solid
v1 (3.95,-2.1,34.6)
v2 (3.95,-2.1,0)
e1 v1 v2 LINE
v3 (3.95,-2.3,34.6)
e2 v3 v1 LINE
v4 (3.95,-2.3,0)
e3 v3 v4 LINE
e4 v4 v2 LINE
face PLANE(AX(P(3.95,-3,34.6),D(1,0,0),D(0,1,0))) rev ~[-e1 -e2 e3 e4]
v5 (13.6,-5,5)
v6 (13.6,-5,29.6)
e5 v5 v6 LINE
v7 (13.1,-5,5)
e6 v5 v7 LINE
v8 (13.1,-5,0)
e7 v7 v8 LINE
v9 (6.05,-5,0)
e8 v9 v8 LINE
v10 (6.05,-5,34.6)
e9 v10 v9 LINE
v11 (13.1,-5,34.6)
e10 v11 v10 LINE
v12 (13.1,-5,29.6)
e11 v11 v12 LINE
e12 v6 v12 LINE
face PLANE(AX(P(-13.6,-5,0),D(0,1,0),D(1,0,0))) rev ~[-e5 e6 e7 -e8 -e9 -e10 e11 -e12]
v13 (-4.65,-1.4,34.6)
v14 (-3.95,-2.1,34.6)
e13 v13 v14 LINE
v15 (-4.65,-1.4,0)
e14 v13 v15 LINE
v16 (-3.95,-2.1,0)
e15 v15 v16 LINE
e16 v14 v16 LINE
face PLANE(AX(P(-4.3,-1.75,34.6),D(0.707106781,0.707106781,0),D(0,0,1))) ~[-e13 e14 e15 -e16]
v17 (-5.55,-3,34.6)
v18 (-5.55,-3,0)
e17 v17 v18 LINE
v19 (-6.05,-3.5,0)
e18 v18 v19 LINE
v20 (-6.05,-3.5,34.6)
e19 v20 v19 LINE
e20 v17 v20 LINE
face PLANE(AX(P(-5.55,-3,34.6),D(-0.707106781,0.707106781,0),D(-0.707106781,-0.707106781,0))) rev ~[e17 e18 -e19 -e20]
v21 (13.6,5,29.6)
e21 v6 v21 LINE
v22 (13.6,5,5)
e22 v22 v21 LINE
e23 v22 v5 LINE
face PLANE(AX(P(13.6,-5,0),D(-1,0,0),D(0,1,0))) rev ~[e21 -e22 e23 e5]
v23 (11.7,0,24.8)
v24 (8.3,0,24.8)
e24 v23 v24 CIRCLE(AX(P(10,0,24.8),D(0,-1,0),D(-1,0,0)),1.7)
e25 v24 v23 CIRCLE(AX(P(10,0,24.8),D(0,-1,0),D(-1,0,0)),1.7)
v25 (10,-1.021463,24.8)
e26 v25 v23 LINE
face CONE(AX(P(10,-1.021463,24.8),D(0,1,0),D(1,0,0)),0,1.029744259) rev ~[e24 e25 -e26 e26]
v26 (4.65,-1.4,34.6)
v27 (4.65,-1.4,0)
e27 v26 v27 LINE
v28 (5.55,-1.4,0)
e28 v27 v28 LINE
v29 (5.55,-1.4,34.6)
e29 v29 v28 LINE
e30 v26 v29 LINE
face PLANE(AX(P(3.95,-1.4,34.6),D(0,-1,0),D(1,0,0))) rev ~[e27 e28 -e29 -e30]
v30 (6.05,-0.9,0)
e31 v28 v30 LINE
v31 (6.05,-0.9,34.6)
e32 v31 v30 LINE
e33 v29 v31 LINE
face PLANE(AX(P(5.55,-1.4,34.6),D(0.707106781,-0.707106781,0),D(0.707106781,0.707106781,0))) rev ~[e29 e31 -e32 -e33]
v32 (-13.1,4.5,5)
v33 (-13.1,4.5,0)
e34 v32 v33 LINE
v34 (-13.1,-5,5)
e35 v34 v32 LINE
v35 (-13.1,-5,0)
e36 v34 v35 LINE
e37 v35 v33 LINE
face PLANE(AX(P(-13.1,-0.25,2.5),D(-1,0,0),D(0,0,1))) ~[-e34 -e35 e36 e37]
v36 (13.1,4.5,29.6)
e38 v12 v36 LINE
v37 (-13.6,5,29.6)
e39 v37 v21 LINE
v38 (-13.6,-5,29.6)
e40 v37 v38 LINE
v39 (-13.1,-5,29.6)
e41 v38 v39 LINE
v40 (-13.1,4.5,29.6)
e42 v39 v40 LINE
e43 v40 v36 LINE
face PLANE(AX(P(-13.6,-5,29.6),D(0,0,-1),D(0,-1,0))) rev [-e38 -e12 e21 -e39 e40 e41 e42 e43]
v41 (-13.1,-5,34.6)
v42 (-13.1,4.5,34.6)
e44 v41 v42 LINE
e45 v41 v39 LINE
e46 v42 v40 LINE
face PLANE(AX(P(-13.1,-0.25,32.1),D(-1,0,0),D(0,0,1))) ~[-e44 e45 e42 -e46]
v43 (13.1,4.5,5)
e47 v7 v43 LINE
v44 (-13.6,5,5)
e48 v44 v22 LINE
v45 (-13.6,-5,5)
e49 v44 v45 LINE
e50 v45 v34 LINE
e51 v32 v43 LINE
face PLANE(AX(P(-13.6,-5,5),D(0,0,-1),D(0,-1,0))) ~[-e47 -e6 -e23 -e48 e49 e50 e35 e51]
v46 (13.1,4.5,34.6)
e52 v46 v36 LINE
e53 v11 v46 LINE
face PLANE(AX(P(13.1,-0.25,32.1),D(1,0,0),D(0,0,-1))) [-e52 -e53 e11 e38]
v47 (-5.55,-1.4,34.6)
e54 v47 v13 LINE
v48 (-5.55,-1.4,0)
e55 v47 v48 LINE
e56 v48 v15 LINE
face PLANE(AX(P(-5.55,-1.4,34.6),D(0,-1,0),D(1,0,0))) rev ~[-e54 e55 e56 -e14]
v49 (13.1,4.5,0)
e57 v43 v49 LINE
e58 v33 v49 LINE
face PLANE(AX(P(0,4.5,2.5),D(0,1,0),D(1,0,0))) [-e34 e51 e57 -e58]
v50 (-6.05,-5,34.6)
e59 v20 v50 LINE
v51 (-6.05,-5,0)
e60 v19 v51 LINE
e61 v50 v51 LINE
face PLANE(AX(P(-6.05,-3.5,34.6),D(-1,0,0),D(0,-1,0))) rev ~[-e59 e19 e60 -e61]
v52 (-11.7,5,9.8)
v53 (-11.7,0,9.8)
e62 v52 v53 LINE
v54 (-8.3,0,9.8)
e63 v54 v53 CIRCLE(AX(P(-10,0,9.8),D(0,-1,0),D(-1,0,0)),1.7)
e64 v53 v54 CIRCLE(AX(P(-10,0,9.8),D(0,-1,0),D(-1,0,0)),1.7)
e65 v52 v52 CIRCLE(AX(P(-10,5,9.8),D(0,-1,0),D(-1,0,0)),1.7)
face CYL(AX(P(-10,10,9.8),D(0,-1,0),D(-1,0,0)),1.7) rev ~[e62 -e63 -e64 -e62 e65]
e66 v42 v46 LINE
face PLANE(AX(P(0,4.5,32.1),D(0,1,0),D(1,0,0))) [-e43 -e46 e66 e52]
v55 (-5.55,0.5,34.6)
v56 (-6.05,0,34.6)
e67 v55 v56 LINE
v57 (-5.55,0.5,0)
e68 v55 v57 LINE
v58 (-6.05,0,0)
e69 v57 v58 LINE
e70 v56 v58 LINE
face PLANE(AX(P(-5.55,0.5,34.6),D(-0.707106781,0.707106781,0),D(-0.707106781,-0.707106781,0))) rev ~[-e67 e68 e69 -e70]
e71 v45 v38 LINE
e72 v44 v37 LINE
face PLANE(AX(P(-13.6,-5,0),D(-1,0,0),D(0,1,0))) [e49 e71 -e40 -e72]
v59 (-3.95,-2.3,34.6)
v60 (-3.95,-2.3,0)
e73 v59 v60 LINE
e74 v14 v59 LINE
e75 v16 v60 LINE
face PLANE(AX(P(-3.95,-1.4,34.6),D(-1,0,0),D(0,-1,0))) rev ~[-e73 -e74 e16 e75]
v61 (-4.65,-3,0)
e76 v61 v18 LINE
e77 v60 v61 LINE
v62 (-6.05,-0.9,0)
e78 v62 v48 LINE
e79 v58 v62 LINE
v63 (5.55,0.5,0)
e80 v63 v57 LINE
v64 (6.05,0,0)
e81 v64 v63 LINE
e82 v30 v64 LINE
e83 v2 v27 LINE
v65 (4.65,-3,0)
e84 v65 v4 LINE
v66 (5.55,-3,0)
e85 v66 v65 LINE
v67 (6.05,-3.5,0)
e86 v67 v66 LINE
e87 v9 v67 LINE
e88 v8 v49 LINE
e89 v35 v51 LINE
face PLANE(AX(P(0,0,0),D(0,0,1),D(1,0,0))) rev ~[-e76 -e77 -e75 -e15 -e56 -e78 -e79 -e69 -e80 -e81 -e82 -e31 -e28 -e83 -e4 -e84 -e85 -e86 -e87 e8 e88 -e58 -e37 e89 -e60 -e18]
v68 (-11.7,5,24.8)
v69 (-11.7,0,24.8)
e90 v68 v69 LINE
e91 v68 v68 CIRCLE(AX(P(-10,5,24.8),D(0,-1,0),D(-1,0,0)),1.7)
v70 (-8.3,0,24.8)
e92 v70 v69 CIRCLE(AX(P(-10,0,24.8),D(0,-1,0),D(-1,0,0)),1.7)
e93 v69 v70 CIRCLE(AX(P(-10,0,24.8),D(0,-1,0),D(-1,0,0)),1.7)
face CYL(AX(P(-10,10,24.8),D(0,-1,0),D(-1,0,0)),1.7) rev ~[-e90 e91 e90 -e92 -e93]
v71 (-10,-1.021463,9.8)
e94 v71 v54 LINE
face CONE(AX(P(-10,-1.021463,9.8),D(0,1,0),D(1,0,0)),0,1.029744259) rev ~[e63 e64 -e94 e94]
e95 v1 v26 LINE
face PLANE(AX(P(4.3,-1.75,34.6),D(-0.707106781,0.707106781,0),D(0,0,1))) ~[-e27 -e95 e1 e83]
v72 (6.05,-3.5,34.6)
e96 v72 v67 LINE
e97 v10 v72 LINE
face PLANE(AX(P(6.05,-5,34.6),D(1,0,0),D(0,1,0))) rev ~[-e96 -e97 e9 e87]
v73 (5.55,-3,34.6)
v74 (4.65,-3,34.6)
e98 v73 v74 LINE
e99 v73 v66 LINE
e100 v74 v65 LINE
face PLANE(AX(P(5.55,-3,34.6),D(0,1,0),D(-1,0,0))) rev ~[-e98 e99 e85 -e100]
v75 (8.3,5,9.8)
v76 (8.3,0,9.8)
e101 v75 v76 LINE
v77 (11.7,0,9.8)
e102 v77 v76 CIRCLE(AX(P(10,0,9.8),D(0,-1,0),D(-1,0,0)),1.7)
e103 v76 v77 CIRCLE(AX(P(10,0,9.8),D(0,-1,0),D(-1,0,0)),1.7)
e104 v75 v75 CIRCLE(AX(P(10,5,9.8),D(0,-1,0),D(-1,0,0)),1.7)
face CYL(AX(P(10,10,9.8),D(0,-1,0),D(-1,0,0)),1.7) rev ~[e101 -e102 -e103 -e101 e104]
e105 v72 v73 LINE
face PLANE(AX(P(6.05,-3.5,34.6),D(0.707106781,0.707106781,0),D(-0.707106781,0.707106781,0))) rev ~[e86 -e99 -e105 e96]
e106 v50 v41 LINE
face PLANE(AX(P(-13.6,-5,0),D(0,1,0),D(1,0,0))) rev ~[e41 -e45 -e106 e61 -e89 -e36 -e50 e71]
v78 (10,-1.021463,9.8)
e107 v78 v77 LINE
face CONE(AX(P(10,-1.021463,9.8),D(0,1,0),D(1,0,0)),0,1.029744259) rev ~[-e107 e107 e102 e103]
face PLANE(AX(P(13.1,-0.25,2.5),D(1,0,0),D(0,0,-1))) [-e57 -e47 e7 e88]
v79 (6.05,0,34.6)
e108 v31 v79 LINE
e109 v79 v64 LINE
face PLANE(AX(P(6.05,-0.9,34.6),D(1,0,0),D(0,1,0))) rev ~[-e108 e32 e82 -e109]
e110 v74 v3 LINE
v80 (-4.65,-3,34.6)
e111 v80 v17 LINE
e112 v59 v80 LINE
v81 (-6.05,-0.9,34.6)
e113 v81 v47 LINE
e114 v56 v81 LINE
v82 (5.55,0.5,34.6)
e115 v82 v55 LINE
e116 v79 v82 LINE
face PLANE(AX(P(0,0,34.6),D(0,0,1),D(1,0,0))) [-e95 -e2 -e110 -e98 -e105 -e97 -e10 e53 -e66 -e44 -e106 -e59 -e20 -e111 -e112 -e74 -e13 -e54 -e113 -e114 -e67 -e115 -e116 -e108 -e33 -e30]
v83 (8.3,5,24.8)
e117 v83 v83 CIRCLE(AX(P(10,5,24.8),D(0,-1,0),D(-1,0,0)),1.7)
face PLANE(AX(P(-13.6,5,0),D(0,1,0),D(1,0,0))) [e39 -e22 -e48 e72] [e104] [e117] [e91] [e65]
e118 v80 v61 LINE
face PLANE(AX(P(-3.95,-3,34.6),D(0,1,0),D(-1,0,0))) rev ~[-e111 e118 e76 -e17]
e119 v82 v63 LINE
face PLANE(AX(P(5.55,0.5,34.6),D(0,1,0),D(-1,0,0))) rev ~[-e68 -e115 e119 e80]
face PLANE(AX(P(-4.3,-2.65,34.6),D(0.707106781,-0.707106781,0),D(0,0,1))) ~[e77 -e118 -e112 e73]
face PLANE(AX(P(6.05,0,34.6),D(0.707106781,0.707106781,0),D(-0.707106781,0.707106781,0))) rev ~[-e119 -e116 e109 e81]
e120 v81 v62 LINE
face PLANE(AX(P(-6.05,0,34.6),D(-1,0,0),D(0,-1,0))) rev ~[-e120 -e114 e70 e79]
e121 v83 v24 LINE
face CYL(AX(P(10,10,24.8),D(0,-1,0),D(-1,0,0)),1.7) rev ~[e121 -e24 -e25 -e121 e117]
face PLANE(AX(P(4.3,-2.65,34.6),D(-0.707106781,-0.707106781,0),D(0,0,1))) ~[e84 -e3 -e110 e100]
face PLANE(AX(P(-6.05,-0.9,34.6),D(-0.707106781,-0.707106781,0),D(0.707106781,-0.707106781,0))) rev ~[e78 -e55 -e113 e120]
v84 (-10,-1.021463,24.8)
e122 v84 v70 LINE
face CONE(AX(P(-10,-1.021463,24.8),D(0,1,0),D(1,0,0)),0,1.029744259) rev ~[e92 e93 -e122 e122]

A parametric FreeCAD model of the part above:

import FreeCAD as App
import Part
import Sketcher

V = App.Vector
Q = App.Units.Quantity


def edges_at(feature, points):
    """Names of the edges that pass closest to the given points."""
    edges = feature.Shape.Edges
    near = lambda p: min(range(len(edges)), key=lambda i: edges[i].distToShape(Part.Vertex(*p))[0])
    return sorted({f"Edge{near(p) + 1}" for p in points})


def add_polygon(sketch, points):
    """Adds a closed chain of lines whose ends are joined by coincident constraints."""
    first, n = sketch.GeometryCount, len(points)
    for a, b in zip(points, points[1:] + points[:1]):
        sketch.addGeometry(Part.LineSegment(App.Vector(*a, 0), App.Vector(*b, 0)), False)
    for i in range(n):
        sketch.addConstraint(Sketcher.Constraint("Coincident", first + i, 2, first + (i + 1) % n, 1))

doc = App.newDocument("Part")
body = doc.addObject("PartDesign::Body", "Body")

# Sketch on XY plane
sketch1 = body.newObject("Sketcher::SketchObject", "Sketch")
sketch1.AttachmentSupport = (doc.getObject("XY_Plane"), [""])
sketch1.MapMode = "FlatFace"
add_polygon(sketch1, [(-14, 5), (-14, -5), (14, -5), (14, 5)])  # lines 0-3
sketch1.addConstraint(Sketcher.Constraint("Vertical", 0))
sketch1.addConstraint(Sketcher.Constraint("Horizontal", 1))
sketch1.addConstraint(Sketcher.Constraint("Vertical", 2))
sketch1.addConstraint(Sketcher.Constraint("Horizontal", 3))
sketch1.addConstraint(Sketcher.Constraint("Symmetric", 0, 2, 2, 2, -1, 1))
sketch1.addConstraint(Sketcher.Constraint("DistanceY", 0, 2, 0, 1, Q("10 mm")))
sketch1.addConstraint(Sketcher.Constraint("DistanceX", 1, 1, 1, 2, Q("27.2 mm")))
pad1 = body.newObject("PartDesign::Pad", "Pad")
pad1.Profile = sketch1
pad1.Length = 34.6

# Sketch on XY plane
sketch2 = body.newObject("Sketcher::SketchObject", "Sketch001")
sketch2.AttachmentSupport = (doc.getObject("XY_Plane"), [""])
sketch2.MapMode = "FlatFace"
sketch2.AttachmentOffset = App.Placement(V(0, 0, 34.6), App.Rotation())
add_polygon(sketch2, [(-5.5, -3), (-6, -3.5), (-6, -5), (6, -5), (6, -3.5), (5.5, -3), (4, -3), (4, -1.4), (5.5, -1.4), (6, -0.9), (6, 0), (5.5, 0.5), (-5.5, 0.5), (-6, 0), (-6, -0.9), (-5.5, -1.4), (-4, -1.4), (-4, -3)])  # lines 0-17
sketch2.addConstraint(Sketcher.Constraint("Vertical", 1))
sketch2.addConstraint(Sketcher.Constraint("Horizontal", 2))
sketch2.addConstraint(Sketcher.Constraint("Vertical", 3))
sketch2.addConstraint(Sketcher.Constraint("Horizontal", 5))
sketch2.addConstraint(Sketcher.Constraint("Vertical", 6))
sketch2.addConstraint(Sketcher.Constraint("Horizontal", 7))
sketch2.addConstraint(Sketcher.Constraint("Vertical", 9))
sketch2.addConstraint(Sketcher.Constraint("Horizontal", 11))
sketch2.addConstraint(Sketcher.Constraint("Vertical", 13))
sketch2.addConstraint(Sketcher.Constraint("Horizontal", 15))
sketch2.addConstraint(Sketcher.Constraint("Vertical", 16))
sketch2.addConstraint(Sketcher.Constraint("Horizontal", 17))
sketch2.addConstraint(Sketcher.Constraint("Symmetric", 9, 2, 12, 2, -1, 1))
sketch2.addConstraint(Sketcher.Constraint("Symmetric", 0, 2, 3, 2, -2))
sketch2.addConstraint(Sketcher.Constraint("Symmetric", 7, 2, 14, 2, -2))
sketch2.addConstraint(Sketcher.Constraint("Symmetric", 5, 2, 16, 2, -2))
sketch2.addConstraint(Sketcher.Constraint("PointOnObject", 9, 2, -1))
sketch2.addConstraint(Sketcher.Constraint("Perpendicular", 0, 4))
sketch2.addConstraint(Sketcher.Constraint("Perpendicular", 4, 8))
sketch2.addConstraint(Sketcher.Constraint("Perpendicular", 8, 10))
sketch2.addConstraint(Sketcher.Constraint("Perpendicular", 10, 12))
sketch2.addConstraint(Sketcher.Constraint("Perpendicular", 12, 14))
sketch2.addConstraint(Sketcher.Constraint("Horizontal", 8, 2, 13, 2))
sketch2.addConstraint(Sketcher.Constraint("Vertical", 4, 2, 7, 2))
sketch2.addConstraint(Sketcher.Constraint("Vertical", 3, 2, 8, 2))
sketch2.addConstraint(Sketcher.Constraint("Vertical", 7, 2, 10, 2))
sketch2.addConstraint(Sketcher.Constraint("Equal", 17, 6))
sketch2.addConstraint(Sketcher.Constraint("DistanceX", 2, 1, 2, 2, Q("12.1 mm")))
sketch2.addConstraint(Sketcher.Constraint("DistanceX", 5, 2, 5, 1, Q("1.6 mm")))
sketch2.addConstraint(Sketcher.Constraint("DistanceX", 11, 2, 11, 1, Q("11.1 mm")))
sketch2.addConstraint(Sketcher.Constraint("DistanceY", 1, 2, 1, 1, Q("1.5 mm")))
sketch2.addConstraint(Sketcher.Constraint("DistanceY", 9, 1, 9, 2, Q("0.9 mm")))
pocket1 = body.newObject("PartDesign::Pocket", "Pocket")
pocket1.Profile = sketch2
pocket1.Type = "ThroughAll"
pocket1.Midplane = True
doc.recompute()

chamfer = body.newObject("PartDesign::Chamfer", "Chamfer")
chamfer.Base = (pocket1, edges_at(pocket1, [
    (-3.95, -3, 17.3),
    (3.95, -3, 17.3),
    (3.95, -1.4, 17.3),
    (-3.95, -1.4, 17.3),
]))
chamfer.Size = 0.7

# Sketch on XZ plane
sketch3 = body.newObject("Sketcher::SketchObject", "Sketch002")
sketch3.AttachmentSupport = (doc.getObject("XZ_Plane"), [""])
sketch3.MapMode = "FlatFace"
sketch3.AttachmentOffset = App.Placement(V(0, 0, -5), App.Rotation())
sketch3.addGeometry(Part.Circle(V(-10, 24.8, 0), V(0, 0, 1), 1.7), False)
sketch3.addGeometry(Part.Circle(V(-10, 9.8, 0), V(0, 0, 1), 1.7), False)
sketch3.addGeometry(Part.Circle(V(10, 9.8, 0), V(0, 0, 1), 1.7), False)
sketch3.addGeometry(Part.Circle(V(10, 24.8, 0), V(0, 0, 1), 1.7), False)
sketch3.addConstraint(Sketcher.Constraint("Equal", 0, 1))
sketch3.addConstraint(Sketcher.Constraint("Equal", 1, 2))
sketch3.addConstraint(Sketcher.Constraint("Equal", 2, 3))
sketch3.addConstraint(Sketcher.Constraint("Symmetric", 1, 3, 2, 3, -2))
sketch3.addConstraint(Sketcher.Constraint("Symmetric", 0, 3, 3, 3, -2))
sketch3.addConstraint(Sketcher.Constraint("Vertical", 0, 3, 1, 3))
sketch3.addConstraint(Sketcher.Constraint("Diameter", 0, Q("3.4 mm")))
sketch3.addConstraint(Sketcher.Constraint("DistanceX", 0, 3, -1, 1, Q("10 mm")))
sketch3.addConstraint(Sketcher.Constraint("DistanceY", 1, 3, 0, 3, Q("15 mm")))
sketch3.addConstraint(Sketcher.Constraint("DistanceY", -1, 1, 0, 3, Q("24.8 mm")))
doc.recompute()
hole = body.newObject("PartDesign::Hole", "Hole")
hole.Profile = sketch3
hole.ThreadType = "None"
hole.Diameter = 3.4
hole.DepthType = "Dimension"
hole.Depth = 5
hole.DrillPoint = "Angled"
hole.DrillPointAngle = 118
hole.Reversed = True

# Sketch on XZ plane
sketch4 = body.newObject("Sketcher::SketchObject", "Sketch003")
sketch4.AttachmentSupport = (doc.getObject("XZ_Plane"), [""])
sketch4.MapMode = "FlatFace"
sketch4.AttachmentOffset = App.Placement(V(0, 0, -5), App.Rotation())
add_polygon(sketch4, [(-14, 30), (-14, 35), (14, 35), (14, 30)])  # lines 0-3
add_polygon(sketch4, [(-14, 0), (-14, 5), (14, 5), (14, 0)])  # lines 4-7
sketch4.addConstraint(Sketcher.Constraint("Vertical", 0))
sketch4.addConstraint(Sketcher.Constraint("Horizontal", 1))
sketch4.addConstraint(Sketcher.Constraint("Vertical", 2))
sketch4.addConstraint(Sketcher.Constraint("Horizontal", 3))
sketch4.addConstraint(Sketcher.Constraint("Vertical", 4))
sketch4.addConstraint(Sketcher.Constraint("Horizontal", 5))
sketch4.addConstraint(Sketcher.Constraint("Vertical", 6))
sketch4.addConstraint(Sketcher.Constraint("Horizontal", 7))
sketch4.addConstraint(Sketcher.Constraint("Symmetric", 6, 2, 7, 2, -1, 1))
sketch4.addConstraint(Sketcher.Constraint("Vertical", 3, 2, 4, 2))
sketch4.addConstraint(Sketcher.Constraint("Vertical", 2, 2, 5, 2))
sketch4.addConstraint(Sketcher.Constraint("Equal", 2, 4))
sketch4.addConstraint(Sketcher.Constraint("DistanceY", 0, 1, 0, 2, Q("5 mm")))
sketch4.addConstraint(Sketcher.Constraint("DistanceX", 1, 1, 1, 2, Q("27.2 mm")))
sketch4.addConstraint(Sketcher.Constraint("DistanceY", -1, 1, 0, 2, Q("34.6 mm")))
pocket2 = body.newObject("PartDesign::Pocket", "Pocket001")
pocket2.Profile = sketch4
pocket2.Length = 0.5
pocket2.Reversed = True

# Sketch on YZ plane
sketch5 = body.newObject("Sketcher::SketchObject", "Sketch004")
sketch5.AttachmentSupport = (doc.getObject("YZ_Plane"), [""])
sketch5.MapMode = "FlatFace"
sketch5.AttachmentOffset = App.Placement(V(0, 0, 13.6), App.Rotation())
add_polygon(sketch5, [(4, 35), (-5, 35), (-5, 30), (4, 30)])  # lines 0-3
add_polygon(sketch5, [(4, 5), (-5, 5), (-5, 0), (4, 0)])  # lines 4-7
sketch5.addConstraint(Sketcher.Constraint("Horizontal", 0))
sketch5.addConstraint(Sketcher.Constraint("Vertical", 1))
sketch5.addConstraint(Sketcher.Constraint("Horizontal", 2))
sketch5.addConstraint(Sketcher.Constraint("Vertical", 3))
sketch5.addConstraint(Sketcher.Constraint("Horizontal", 4))
sketch5.addConstraint(Sketcher.Constraint("Vertical", 5))
sketch5.addConstraint(Sketcher.Constraint("Horizontal", 6))
sketch5.addConstraint(Sketcher.Constraint("Vertical", 7))
sketch5.addConstraint(Sketcher.Constraint("PointOnObject", 5, 2, -1))
sketch5.addConstraint(Sketcher.Constraint("Vertical", 1, 2, 4, 2))
sketch5.addConstraint(Sketcher.Constraint("Vertical", 3, 2, 6, 2))
sketch5.addConstraint(Sketcher.Constraint("Equal", 3, 5))
sketch5.addConstraint(Sketcher.Constraint("DistanceY", 1, 2, 1, 1, Q("5 mm")))
sketch5.addConstraint(Sketcher.Constraint("DistanceX", 0, 2, 0, 1, Q("9.5 mm")))
sketch5.addConstraint(Sketcher.Constraint("DistanceX", 0, 2, -1, 1, Q("5 mm")))
sketch5.addConstraint(Sketcher.Constraint("DistanceY", -1, 1, 0, 2, Q("34.6 mm")))
pocket3 = body.newObject("PartDesign::Pocket", "Pocket002")
pocket3.Profile = sketch5
pocket3.Length = 0.5
doc.recompute()

mirrored = body.newObject("PartDesign::Mirrored", "Mirrored")
mirrored.Originals = [pocket3]
mirrored.MirrorPlane = (doc.getObject("YZ_Plane"), [""])
body.Tip = mirrored

doc.recompute()
